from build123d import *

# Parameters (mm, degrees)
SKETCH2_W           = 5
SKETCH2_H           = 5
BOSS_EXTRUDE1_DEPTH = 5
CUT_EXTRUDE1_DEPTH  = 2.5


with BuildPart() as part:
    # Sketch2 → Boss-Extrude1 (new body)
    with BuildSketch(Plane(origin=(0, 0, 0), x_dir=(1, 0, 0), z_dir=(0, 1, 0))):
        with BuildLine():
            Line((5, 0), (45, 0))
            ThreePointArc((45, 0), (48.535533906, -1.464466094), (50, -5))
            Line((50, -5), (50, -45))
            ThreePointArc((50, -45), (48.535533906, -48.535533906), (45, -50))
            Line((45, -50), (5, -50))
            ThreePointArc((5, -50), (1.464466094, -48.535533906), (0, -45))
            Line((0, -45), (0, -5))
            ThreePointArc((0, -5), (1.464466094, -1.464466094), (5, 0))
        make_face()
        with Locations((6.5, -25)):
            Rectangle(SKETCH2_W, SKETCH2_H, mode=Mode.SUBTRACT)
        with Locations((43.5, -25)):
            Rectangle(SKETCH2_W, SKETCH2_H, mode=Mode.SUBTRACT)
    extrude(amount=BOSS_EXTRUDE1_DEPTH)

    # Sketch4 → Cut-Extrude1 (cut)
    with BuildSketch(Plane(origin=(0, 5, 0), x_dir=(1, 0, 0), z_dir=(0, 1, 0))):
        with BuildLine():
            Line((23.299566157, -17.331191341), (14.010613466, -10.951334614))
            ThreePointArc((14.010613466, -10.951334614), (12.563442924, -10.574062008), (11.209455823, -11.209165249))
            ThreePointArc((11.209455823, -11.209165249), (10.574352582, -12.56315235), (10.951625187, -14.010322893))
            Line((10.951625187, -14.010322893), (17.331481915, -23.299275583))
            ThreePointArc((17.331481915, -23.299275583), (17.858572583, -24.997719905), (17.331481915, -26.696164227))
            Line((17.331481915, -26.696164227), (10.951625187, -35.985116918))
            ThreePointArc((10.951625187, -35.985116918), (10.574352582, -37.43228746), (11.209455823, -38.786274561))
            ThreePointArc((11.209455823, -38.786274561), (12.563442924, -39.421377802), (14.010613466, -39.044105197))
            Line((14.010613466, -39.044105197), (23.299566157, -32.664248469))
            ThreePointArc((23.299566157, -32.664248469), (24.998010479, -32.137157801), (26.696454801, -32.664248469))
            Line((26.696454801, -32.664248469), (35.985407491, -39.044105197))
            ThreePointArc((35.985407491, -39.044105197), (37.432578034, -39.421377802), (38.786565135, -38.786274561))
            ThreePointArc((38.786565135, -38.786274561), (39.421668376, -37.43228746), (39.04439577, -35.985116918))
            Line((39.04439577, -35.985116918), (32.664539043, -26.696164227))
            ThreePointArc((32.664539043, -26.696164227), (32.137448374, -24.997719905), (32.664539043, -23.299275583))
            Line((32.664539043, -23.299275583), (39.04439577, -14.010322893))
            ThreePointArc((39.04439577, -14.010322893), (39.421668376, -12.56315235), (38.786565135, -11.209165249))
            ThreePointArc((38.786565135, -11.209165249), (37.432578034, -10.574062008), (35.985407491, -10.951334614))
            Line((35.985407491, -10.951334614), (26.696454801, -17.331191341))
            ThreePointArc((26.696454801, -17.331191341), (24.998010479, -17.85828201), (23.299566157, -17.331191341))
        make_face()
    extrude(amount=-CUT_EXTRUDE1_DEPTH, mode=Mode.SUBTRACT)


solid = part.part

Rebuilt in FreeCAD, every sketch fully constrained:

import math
import FreeCAD as App
import Part
import Sketcher
from FreeCAD import Vector
Q = App.Units.Quantity


def add_polygon(sketch, points):
    """Adds a closed chain of lines whose ends are joined by coincident constraints."""
    first, n = sketch.GeometryCount, len(points)
    for a, b in zip(points, points[1:] + points[:1]):
        sketch.addGeometry(Part.LineSegment(App.Vector(*a, 0), App.Vector(*b, 0)), False)
    for i in range(n):
        sketch.addConstraint(Sketcher.Constraint("Coincident", first + i, 2, first + (i + 1) % n, 1))

doc = App.newDocument("Part")
body = doc.addObject("PartDesign::Body", "Body")

sketch1 = body.newObject("Sketcher::SketchObject", "Sketch")
sketch1.AttachmentSupport = (doc.getObject("XZ_Plane"), [""])
sketch1.MapMode = "FlatFace"
sketch1.addGeometry(Part.LineSegment(Vector(45, 0, 0), Vector(5, 0, 0)), False)
sketch1.addGeometry(Part.ArcOfCircle(Part.Circle(Vector(5, 5, 0), Vector(0, 0, 1), 5), math.radians(180), math.radians(270)), False)
sketch1.addGeometry(Part.LineSegment(Vector(0, 5, 0), Vector(0, 45, 0)), False)
sketch1.addGeometry(Part.ArcOfCircle(Part.Circle(Vector(5, 45, 0), Vector(0, 0, 1), 5), math.radians(90), math.radians(180)), False)
sketch1.addGeometry(Part.LineSegment(Vector(5, 50, 0), Vector(45, 50, 0)), False)
sketch1.addGeometry(Part.ArcOfCircle(Part.Circle(Vector(45, 45, 0), Vector(0, 0, 1), 5), math.radians(0), math.radians(90)), False)
sketch1.addGeometry(Part.LineSegment(Vector(50, 45, 0), Vector(50, 5, 0)), False)
sketch1.addGeometry(Part.ArcOfCircle(Part.Circle(Vector(45, 5, 0), Vector(0, 0, 1), 5), math.radians(-90), math.radians(0)), False)
add_polygon(sketch1, [(41, 28), (41, 22), (46, 22), (46, 28)])
add_polygon(sketch1, [(4, 28), (4, 22), (9, 22), (9, 28)])
sketch1.addConstraint(Sketcher.Constraint("Tangent", 0, 2, 1, 2))
sketch1.addConstraint(Sketcher.Constraint("Tangent", 1, 1, 2, 1))
sketch1.addConstraint(Sketcher.Constraint("Tangent", 2, 2, 3, 2))
sketch1.addConstraint(Sketcher.Constraint("Tangent", 3, 1, 4, 1))
sketch1.addConstraint(Sketcher.Constraint("Tangent", 4, 2, 5, 2))
sketch1.addConstraint(Sketcher.Constraint("Tangent", 5, 1, 6, 1))
sketch1.addConstraint(Sketcher.Constraint("Tangent", 6, 2, 7, 2))
sketch1.addConstraint(Sketcher.Constraint("Tangent", 7, 1, 0, 1))
sketch1.addConstraint(Sketcher.Constraint("Horizontal", 0))
sketch1.addConstraint(Sketcher.Constraint("Vertical", 2))
sketch1.addConstraint(Sketcher.Constraint("Horizontal", 4))
sketch1.addConstraint(Sketcher.Constraint("Vertical", 6))
sketch1.addConstraint(Sketcher.Constraint("Vertical", 8))
sketch1.addConstraint(Sketcher.Constraint("Horizontal", 9))
sketch1.addConstraint(Sketcher.Constraint("Vertical", 10))
sketch1.addConstraint(Sketcher.Constraint("Horizontal", 11))
sketch1.addConstraint(Sketcher.Constraint("Vertical", 12))
sketch1.addConstraint(Sketcher.Constraint("Horizontal", 13))
sketch1.addConstraint(Sketcher.Constraint("Vertical", 14))
sketch1.addConstraint(Sketcher.Constraint("Horizontal", 15))
sketch1.addConstraint(Sketcher.Constraint("Equal", 1, 3))
sketch1.addConstraint(Sketcher.Constraint("Equal", 3, 5))
sketch1.addConstraint(Sketcher.Constraint("Equal", 5, 7))
sketch1.addConstraint(Sketcher.Constraint("PointOnObject", 0, 2, -1))
sketch1.addConstraint(Sketcher.Constraint("PointOnObject", 1, 1, -2))
sketch1.addConstraint(Sketcher.Constraint("Horizontal", 9, 2, 12, 2))
sketch1.addConstraint(Sketcher.Constraint("Horizontal", 11, 2, 14, 2))
sketch1.addConstraint(Sketcher.Constraint("Equal", 11, 13))
sketch1.addConstraint(Sketcher.Constraint("Equal", 4, 2))
sketch1.addConstraint(Sketcher.Constraint("Equal", 15, 8))
sketch1.addConstraint(Sketcher.Constraint("Radius", 1, Q("5 mm")))
sketch1.addConstraint(Sketcher.Constraint("DistanceX", 0, 2, 0, 1, Q("40 mm")))
sketch1.addConstraint(Sketcher.Constraint("DistanceX", 9, 1, 9, 2, Q("5 mm")))
sketch1.addConstraint(Sketcher.Constraint("DistanceX", -1, 1, 8, 2, Q("41 mm")))
sketch1.addConstraint(Sketcher.Constraint("DistanceX", -1, 1, 12, 2, Q("4 mm")))
sketch1.addConstraint(Sketcher.Constraint("DistanceY", -1, 1, 8, 2, Q("22.5 mm")))
pad1 = body.newObject("PartDesign::Pad", "Pad")
pad1.Profile = sketch1
pad1.Length = 5
pad1.Reversed = True

sketch2 = body.newObject("Sketcher::SketchObject", "Sketch001")
sketch2.AttachmentSupport = (doc.getObject("XZ_Plane"), [""])
sketch2.MapMode = "FlatFace"
sketch2.AttachmentOffset = App.Placement(Vector(0, 0, -5), App.Rotation())
sketch2.addGeometry(Part.LineSegment(Vector(23.3, 17.3, 0), Vector(14, 11, 0)), False)
sketch2.addGeometry(Part.ArcOfCircle(Part.Circle(Vector(12.8, 12.8, 0), Vector(0, 0, 1), 2.2), math.radians(-135), math.radians(-56)), False)
sketch2.addGeometry(Part.ArcOfCircle(Part.Circle(Vector(12.8, 12.8, 0), Vector(0, 0, 1), 2.2), math.radians(146), math.radians(225)), False)
sketch2.addGeometry(Part.LineSegment(Vector(11, 14, 0), Vector(17.3, 23.3, 0)), False)
sketch2.addGeometry(Part.ArcOfCircle(Part.Circle(Vector(14.9, 25, 0), Vector(0, 0, 1), 3), math.radians(-34), math.radians(34)), False)
sketch2.addGeometry(Part.LineSegment(Vector(17.3, 26.7, 0), Vector(11, 36, 0)), False)
sketch2.addGeometry(Part.ArcOfCircle(Part.Circle(Vector(12.8, 37.2, 0), Vector(0, 0, 1), 2.2), math.radians(135), math.radians(214)), False)
sketch2.addGeometry(Part.ArcOfCircle(Part.Circle(Vector(12.8, 37.2, 0), Vector(0, 0, 1), 2.2), math.radians(56), math.radians(135)), False)
sketch2.addGeometry(Part.LineSegment(Vector(14, 39, 0), Vector(23.3, 32.7, 0)), False)
sketch2.addGeometry(Part.ArcOfCircle(Part.Circle(Vector(25, 35.1, 0), Vector(0, 0, 1), 3), math.radians(-124), math.radians(-56)), False)
sketch2.addGeometry(Part.LineSegment(Vector(26.7, 32.7, 0), Vector(36, 39, 0)), False)
sketch2.addGeometry(Part.ArcOfCircle(Part.Circle(Vector(37.2, 37.2, 0), Vector(0, 0, 1), 2.2), math.radians(45), math.radians(124)), False)
sketch2.addGeometry(Part.ArcOfCircle(Part.Circle(Vector(37.2, 37.2, 0), Vector(0, 0, 1), 2.2), math.radians(-34), math.radians(45)), False)
sketch2.addGeometry(Part.LineSegment(Vector(39, 36, 0), Vector(32.7, 26.7, 0)), False)
sketch2.addGeometry(Part.ArcOfCircle(Part.Circle(Vector(35.1, 25, 0), Vector(0, 0, 1), 3), math.radians(146), math.radians(214)), False)
sketch2.addGeometry(Part.LineSegment(Vector(32.7, 23.3, 0), Vector(39, 14, 0)), False)
sketch2.addGeometry(Part.ArcOfCircle(Part.Circle(Vector(37.2, 12.8, 0), Vector(0, 0, 1), 2.2), math.radians(-45), math.radians(34)), False)
sketch2.addGeometry(Part.ArcOfCircle(Part.Circle(Vector(37.2, 12.8, 0), Vector(0, 0, 1), 2.2), math.radians(-124), math.radians(-45)), False)
sketch2.addGeometry(Part.LineSegment(Vector(36, 11, 0), Vector(26.7, 17.3, 0)), False)
sketch2.addGeometry(Part.ArcOfCircle(Part.Circle(Vector(25, 14.9, 0), Vector(0, 0, 1), 3), math.radians(56), math.radians(124)), False)
sketch2.addConstraint(Sketcher.Constraint("Tangent", 0, 2, 1, 2))
sketch2.addConstraint(Sketcher.Constraint("Tangent", 1, 1, 2, 2))
sketch2.addConstraint(Sketcher.Constraint("Tangent", 2, 1, 3, 1))
sketch2.addConstraint(Sketcher.Constraint("Tangent", 3, 2, 4, 1))
sketch2.addConstraint(Sketcher.Constraint("Tangent", 4, 2, 5, 1))
sketch2.addConstraint(Sketcher.Constraint("Tangent", 5, 2, 6, 2))
sketch2.addConstraint(Sketcher.Constraint("Tangent", 6, 1, 7, 2))
sketch2.addConstraint(Sketcher.Constraint("Tangent", 7, 1, 8, 1))
sketch2.addConstraint(Sketcher.Constraint("Tangent", 8, 2, 9, 1))
sketch2.addConstraint(Sketcher.Constraint("Tangent", 9, 2, 10, 1))
sketch2.addConstraint(Sketcher.Constraint("Tangent", 10, 2, 11, 2))
sketch2.addConstraint(Sketcher.Constraint("Tangent", 11, 1, 12, 2))
sketch2.addConstraint(Sketcher.Constraint("Tangent", 12, 1, 13, 1))
sketch2.addConstraint(Sketcher.Constraint("Tangent", 13, 2, 14, 1))
sketch2.addConstraint(Sketcher.Constraint("Tangent", 14, 2, 15, 1))
sketch2.addConstraint(Sketcher.Constraint("Tangent", 15, 2, 16, 2))
sketch2.addConstraint(Sketcher.Constraint("Tangent", 16, 1, 17, 2))
sketch2.addConstraint(Sketcher.Constraint("Tangent", 17, 1, 18, 1))
sketch2.addConstraint(Sketcher.Constraint("Tangent", 18, 2, 19, 1))
sketch2.addConstraint(Sketcher.Constraint("Tangent", 19, 2, 0, 1))
sketch2.addConstraint(Sketcher.Constraint("Equal", 1, 2))
sketch2.addConstraint(Sketcher.Constraint("Equal", 2, 6))
sketch2.addConstraint(Sketcher.Constraint("Equal", 6, 7))
sketch2.addConstraint(Sketcher.Constraint("Equal", 4, 9))
sketch2.addConstraint(Sketcher.Constraint("Equal", 7, 11))
sketch2.addConstraint(Sketcher.Constraint("Equal", 11, 12))
sketch2.addConstraint(Sketcher.Constraint("Equal", 9, 14))
sketch2.addConstraint(Sketcher.Constraint("Equal", 12, 16))
sketch2.addConstraint(Sketcher.Constraint("Equal", 16, 17))
sketch2.addConstraint(Sketcher.Constraint("Equal", 14, 19))
sketch2.addConstraint(Sketcher.Constraint("Perpendicular", 0, 5))
sketch2.addConstraint(Sketcher.Constraint("Perpendicular", 3, 8))
sketch2.addConstraint(Sketcher.Constraint("Perpendicular", 5, 10))
sketch2.addConstraint(Sketcher.Constraint("Perpendicular", 8, 13))
sketch2.addConstraint(Sketcher.Constraint("Perpendicular", 10, 15))
sketch2.addConstraint(Sketcher.Constraint("Perpendicular", 13, 18))
sketch2.addConstraint(Sketcher.Constraint("Horizontal", 7, 3, 11, 3))
sketch2.addConstraint(Sketcher.Constraint("Horizontal", 4, 3, 14, 3))
sketch2.addConstraint(Sketcher.Constraint("Horizontal", 2, 3, 16, 3))
sketch2.addConstraint(Sketcher.Constraint("Horizontal", 8, 2, 9, 2))
sketch2.addConstraint(Sketcher.Constraint("Horizontal", 6, 1, 11, 1))
sketch2.addConstraint(Sketcher.Constraint("Horizontal", 1, 1, 16, 1))
sketch2.addConstraint(Sketcher.Constraint("Vertical", 2, 3, 6, 3))
sketch2.addConstraint(Sketcher.Constraint("Vertical", 1, 1, 6, 1))
sketch2.addConstraint(Sketcher.Constraint("Equal", 0, 3))
sketch2.addConstraint(Sketcher.Constraint("Radius", 1, Q("2.199996 mm")))
sketch2.addConstraint(Sketcher.Constraint("Radius", 4, Q("2.999994 mm")))
sketch2.addConstraint(Sketcher.Constraint("Distance", 0, Q("11.26886 mm")))
sketch2.addConstraint(Sketcher.Constraint("DistanceX", -1, 1, 4, 3, Q("14.858579 mm")))
sketch2.addConstraint(Sketcher.Constraint("DistanceY", -1, 1, 4, 3, Q("24.99772 mm")))
sketch2.addConstraint(Sketcher.Constraint("DistanceX", -1, 1, 9, 3, Q("24.99801 mm")))
sketch2.addConstraint(Sketcher.Constraint("DistanceX", 1, 1, 1, 3, Q("1.555632 mm")))
pocket1 = body.newObject("PartDesign::Pocket", "Pocket")
pocket1.Profile = sketch2
pocket1.Length = 2.5
pocket1.Reversed = True

doc.recompute()
